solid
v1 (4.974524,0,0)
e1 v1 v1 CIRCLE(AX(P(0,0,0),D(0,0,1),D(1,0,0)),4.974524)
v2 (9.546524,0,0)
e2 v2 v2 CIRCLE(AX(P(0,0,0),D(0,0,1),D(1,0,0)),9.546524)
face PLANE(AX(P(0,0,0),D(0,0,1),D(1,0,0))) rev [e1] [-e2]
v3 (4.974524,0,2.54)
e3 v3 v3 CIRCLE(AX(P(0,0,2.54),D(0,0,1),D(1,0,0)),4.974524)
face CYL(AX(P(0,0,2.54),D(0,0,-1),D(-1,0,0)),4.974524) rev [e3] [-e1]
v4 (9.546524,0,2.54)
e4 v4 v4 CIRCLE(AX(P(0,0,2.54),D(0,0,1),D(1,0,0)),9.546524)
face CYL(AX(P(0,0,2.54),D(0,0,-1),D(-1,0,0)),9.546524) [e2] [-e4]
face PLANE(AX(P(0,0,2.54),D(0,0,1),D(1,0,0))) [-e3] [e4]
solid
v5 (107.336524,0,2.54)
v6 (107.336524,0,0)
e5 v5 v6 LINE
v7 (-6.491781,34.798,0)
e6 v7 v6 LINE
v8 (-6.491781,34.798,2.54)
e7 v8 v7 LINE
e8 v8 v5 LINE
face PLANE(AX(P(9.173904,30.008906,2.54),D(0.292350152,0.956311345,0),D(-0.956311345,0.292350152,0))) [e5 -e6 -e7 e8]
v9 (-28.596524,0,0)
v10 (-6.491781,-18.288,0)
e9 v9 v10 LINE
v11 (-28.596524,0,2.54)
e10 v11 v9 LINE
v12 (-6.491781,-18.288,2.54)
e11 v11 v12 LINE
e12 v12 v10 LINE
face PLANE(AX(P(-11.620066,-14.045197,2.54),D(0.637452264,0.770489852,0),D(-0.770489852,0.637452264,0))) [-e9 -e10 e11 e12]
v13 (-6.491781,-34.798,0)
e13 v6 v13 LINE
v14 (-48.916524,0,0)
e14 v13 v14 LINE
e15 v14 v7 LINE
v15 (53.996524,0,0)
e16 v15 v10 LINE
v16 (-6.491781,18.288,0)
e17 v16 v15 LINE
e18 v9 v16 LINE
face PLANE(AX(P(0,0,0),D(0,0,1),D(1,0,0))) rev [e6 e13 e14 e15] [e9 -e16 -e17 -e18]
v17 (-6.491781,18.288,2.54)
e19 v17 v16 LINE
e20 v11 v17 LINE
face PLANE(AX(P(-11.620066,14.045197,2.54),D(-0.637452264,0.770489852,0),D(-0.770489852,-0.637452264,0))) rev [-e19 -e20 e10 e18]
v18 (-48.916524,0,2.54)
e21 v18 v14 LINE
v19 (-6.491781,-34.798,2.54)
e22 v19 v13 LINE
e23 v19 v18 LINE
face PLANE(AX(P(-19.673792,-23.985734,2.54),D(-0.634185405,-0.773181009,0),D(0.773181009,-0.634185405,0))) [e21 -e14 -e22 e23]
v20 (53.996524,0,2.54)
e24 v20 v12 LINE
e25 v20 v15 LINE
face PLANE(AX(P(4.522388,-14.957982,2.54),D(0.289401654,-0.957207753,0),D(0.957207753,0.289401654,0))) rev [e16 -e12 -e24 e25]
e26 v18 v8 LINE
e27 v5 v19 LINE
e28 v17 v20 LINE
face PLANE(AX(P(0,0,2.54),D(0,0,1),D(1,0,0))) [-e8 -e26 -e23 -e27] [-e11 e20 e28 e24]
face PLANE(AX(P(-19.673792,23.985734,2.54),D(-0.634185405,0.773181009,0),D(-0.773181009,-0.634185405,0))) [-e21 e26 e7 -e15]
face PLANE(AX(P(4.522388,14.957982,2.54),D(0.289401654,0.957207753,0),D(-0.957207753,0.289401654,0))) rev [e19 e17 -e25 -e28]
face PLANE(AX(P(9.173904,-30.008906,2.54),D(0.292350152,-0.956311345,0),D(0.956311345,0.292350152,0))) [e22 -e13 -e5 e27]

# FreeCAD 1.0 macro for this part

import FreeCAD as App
import Part
import Sketcher

V = App.Vector
Q = App.Units.Quantity


def add_polygon(sketch, points):
    """Adds a closed chain of lines whose ends are joined by coincident constraints."""
    first, n = sketch.GeometryCount, len(points)
    for a, b in zip(points, points[1:] + points[:1]):
        sketch.addGeometry(Part.LineSegment(App.Vector(*a, 0), App.Vector(*b, 0)), False)
    for i in range(n):
        sketch.addConstraint(Sketcher.Constraint("Coincident", first + i, 2, first + (i + 1) % n, 1))

doc = App.newDocument("Part")
body = doc.addObject("PartDesign::Body", "Body")

# Sketch on XY plane
sketch1 = doc.addObject("Sketcher::SketchObject", "Sketch")
body.addObject(sketch1)
sketch1.AttachmentSupport = (doc.XY_Plane, [""])
sketch1.MapMode = "FlatFace"
add_polygon(sketch1, [(-6, 35), (-49, 0), (-6, -35), (107, 0)])  # lines 0-3
add_polygon(sketch1, [(-29, 0), (-6, 18), (54, 0), (-6, -18)])  # lines 4-7
sketch1.addConstraint(Sketcher.Constraint("Symmetric", 1, 2, 3, 2, -1))
sketch1.addConstraint(Sketcher.Constraint("Symmetric", 4, 2, 6, 2, -1))
sketch1.addConstraint(Sketcher.Constraint("PointOnObject", 0, 2, -1))
sketch1.addConstraint(Sketcher.Constraint("PointOnObject", 2, 2, -1))
sketch1.addConstraint(Sketcher.Constraint("PointOnObject", 5, 2, -1))
sketch1.addConstraint(Sketcher.Constraint("PointOnObject", 7, 2, -1))
sketch1.addConstraint(Sketcher.Constraint("Vertical", 3, 2, 4, 2))
sketch1.addConstraint(Sketcher.Constraint("DistanceX", 5, 2, 2, 2, Q("2.1 in")))
sketch1.addConstraint(Sketcher.Constraint("DistanceX", 0, 2, 7, 2, Q("0.8 in")))
sketch1.addConstraint(Sketcher.Constraint("DistanceY", 1, 2, -1, 1, Q("1.37 in")))
sketch1.addConstraint(Sketcher.Constraint("DistanceY", -1, 1, 4, 2, Q("0.72 in")))
sketch1.addConstraint(Sketcher.Constraint("Distance", 2, 119.0285))
sketch1.addConstraint(Sketcher.Constraint("Distance", 0, 54.870389))
sketch1.addConstraint(Sketcher.Constraint("DistanceX", 1, 2, -1, 1, 6.491781))
pad1 = doc.addObject("PartDesign::Pad", "Pad")
body.addObject(pad1)
pad1.Profile = sketch1
pad1.Length = Q("0.1 in")
body2 = doc.addObject("PartDesign::Body", "Body001")

# Sketch on XY plane
sketch2 = doc.addObject("Sketcher::SketchObject", "Sketch001")
body2.addObject(sketch2)
sketch2.AttachmentSupport = (doc.getObject("XY_Plane001"), [""])
sketch2.MapMode = "FlatFace"
sketch2.addGeometry(Part.Circle(V(0, 0, 0), V(0, 0, 1), 9.5), False)
sketch2.addGeometry(Part.Circle(V(0, 0, 0), V(0, 0, 1), 5), False)
sketch2.addConstraint(Sketcher.Constraint("Coincident", 0, 3, -1, 1))
sketch2.addConstraint(Sketcher.Constraint("Coincident", 1, 3, -1, 1))
sketch2.addConstraint(Sketcher.Constraint("Diameter", 0, 19.093047))
sketch2.addConstraint(Sketcher.Constraint("Diameter", 1, 9.949047))
pad2 = doc.addObject("PartDesign::Pad", "Pad001")
body2.addObject(pad2)
pad2.Profile = sketch2
pad2.Length = Q("0.1 in")

doc.recompute()
